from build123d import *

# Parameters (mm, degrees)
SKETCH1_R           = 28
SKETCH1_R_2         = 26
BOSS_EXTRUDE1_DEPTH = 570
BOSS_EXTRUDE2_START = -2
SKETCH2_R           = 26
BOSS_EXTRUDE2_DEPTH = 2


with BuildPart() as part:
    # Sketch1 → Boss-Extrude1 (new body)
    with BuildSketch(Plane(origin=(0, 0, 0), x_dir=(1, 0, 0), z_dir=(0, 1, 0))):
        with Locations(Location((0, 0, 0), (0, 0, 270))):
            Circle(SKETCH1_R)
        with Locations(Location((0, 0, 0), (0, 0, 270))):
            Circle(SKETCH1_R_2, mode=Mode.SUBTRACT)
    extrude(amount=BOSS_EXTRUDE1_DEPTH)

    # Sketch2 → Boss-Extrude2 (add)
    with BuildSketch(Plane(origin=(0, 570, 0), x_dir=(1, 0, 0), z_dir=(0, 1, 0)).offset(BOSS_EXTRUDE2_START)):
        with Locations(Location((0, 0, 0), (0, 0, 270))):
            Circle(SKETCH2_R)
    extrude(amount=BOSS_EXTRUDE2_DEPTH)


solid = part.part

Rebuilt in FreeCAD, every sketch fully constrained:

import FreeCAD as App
import Part
import Sketcher
Q = App.Units.Quantity

doc = App.newDocument("Part")
body = doc.addObject("PartDesign::Body", "Body")

# Sketch on XZ plane
sketch1 = doc.addObject("Sketcher::SketchObject", "Sketch")
body.addObject(sketch1)
sketch1.AttachmentSupport = (doc.XZ_Plane, [""])
sketch1.MapMode = "FlatFace"
sketch1.addGeometry([
    Part.Circle(App.Vector(0, 0, 0), App.Vector(0, 0, 1), 28),
    Part.Circle(App.Vector(0, 0, 0), App.Vector(0, 0, 1), 26),
], False)
sketch1.addConstraint([
    Sketcher.Constraint("Coincident", 0, 3, -1, 1),
    Sketcher.Constraint("Coincident", 1, 3, -1, 1),
    Sketcher.Constraint("Diameter", 0, Q("56 mm")),
    Sketcher.Constraint("Diameter", 1, Q("52 mm")),
])
pad1 = doc.addObject("PartDesign::Pad", "Pad")
body.addObject(pad1)
pad1.Profile = sketch1
pad1.Length = 570
pad1.Reversed = True

# Sketch on XZ plane
sketch2 = doc.addObject("Sketcher::SketchObject", "Sketch001")
body.addObject(sketch2)
sketch2.AttachmentSupport = (doc.XZ_Plane, [""])
sketch2.MapMode = "FlatFace"
sketch2.AttachmentOffset = App.Placement(App.Vector(0, 0, -568), App.Rotation())
sketch2.addGeometry(Part.Circle(App.Vector(0, 0, 0), App.Vector(0, 0, 1), 26), False)
sketch2.addConstraint([
    Sketcher.Constraint("Coincident", 0, 3, -1, 1),
    Sketcher.Constraint("Diameter", 0, Q("52 mm")),
])
pad2 = doc.addObject("PartDesign::Pad", "Pad001")
body.addObject(pad2)
pad2.Profile = sketch2
pad2.Length = 2
pad2.Reversed = True

doc.recompute()
